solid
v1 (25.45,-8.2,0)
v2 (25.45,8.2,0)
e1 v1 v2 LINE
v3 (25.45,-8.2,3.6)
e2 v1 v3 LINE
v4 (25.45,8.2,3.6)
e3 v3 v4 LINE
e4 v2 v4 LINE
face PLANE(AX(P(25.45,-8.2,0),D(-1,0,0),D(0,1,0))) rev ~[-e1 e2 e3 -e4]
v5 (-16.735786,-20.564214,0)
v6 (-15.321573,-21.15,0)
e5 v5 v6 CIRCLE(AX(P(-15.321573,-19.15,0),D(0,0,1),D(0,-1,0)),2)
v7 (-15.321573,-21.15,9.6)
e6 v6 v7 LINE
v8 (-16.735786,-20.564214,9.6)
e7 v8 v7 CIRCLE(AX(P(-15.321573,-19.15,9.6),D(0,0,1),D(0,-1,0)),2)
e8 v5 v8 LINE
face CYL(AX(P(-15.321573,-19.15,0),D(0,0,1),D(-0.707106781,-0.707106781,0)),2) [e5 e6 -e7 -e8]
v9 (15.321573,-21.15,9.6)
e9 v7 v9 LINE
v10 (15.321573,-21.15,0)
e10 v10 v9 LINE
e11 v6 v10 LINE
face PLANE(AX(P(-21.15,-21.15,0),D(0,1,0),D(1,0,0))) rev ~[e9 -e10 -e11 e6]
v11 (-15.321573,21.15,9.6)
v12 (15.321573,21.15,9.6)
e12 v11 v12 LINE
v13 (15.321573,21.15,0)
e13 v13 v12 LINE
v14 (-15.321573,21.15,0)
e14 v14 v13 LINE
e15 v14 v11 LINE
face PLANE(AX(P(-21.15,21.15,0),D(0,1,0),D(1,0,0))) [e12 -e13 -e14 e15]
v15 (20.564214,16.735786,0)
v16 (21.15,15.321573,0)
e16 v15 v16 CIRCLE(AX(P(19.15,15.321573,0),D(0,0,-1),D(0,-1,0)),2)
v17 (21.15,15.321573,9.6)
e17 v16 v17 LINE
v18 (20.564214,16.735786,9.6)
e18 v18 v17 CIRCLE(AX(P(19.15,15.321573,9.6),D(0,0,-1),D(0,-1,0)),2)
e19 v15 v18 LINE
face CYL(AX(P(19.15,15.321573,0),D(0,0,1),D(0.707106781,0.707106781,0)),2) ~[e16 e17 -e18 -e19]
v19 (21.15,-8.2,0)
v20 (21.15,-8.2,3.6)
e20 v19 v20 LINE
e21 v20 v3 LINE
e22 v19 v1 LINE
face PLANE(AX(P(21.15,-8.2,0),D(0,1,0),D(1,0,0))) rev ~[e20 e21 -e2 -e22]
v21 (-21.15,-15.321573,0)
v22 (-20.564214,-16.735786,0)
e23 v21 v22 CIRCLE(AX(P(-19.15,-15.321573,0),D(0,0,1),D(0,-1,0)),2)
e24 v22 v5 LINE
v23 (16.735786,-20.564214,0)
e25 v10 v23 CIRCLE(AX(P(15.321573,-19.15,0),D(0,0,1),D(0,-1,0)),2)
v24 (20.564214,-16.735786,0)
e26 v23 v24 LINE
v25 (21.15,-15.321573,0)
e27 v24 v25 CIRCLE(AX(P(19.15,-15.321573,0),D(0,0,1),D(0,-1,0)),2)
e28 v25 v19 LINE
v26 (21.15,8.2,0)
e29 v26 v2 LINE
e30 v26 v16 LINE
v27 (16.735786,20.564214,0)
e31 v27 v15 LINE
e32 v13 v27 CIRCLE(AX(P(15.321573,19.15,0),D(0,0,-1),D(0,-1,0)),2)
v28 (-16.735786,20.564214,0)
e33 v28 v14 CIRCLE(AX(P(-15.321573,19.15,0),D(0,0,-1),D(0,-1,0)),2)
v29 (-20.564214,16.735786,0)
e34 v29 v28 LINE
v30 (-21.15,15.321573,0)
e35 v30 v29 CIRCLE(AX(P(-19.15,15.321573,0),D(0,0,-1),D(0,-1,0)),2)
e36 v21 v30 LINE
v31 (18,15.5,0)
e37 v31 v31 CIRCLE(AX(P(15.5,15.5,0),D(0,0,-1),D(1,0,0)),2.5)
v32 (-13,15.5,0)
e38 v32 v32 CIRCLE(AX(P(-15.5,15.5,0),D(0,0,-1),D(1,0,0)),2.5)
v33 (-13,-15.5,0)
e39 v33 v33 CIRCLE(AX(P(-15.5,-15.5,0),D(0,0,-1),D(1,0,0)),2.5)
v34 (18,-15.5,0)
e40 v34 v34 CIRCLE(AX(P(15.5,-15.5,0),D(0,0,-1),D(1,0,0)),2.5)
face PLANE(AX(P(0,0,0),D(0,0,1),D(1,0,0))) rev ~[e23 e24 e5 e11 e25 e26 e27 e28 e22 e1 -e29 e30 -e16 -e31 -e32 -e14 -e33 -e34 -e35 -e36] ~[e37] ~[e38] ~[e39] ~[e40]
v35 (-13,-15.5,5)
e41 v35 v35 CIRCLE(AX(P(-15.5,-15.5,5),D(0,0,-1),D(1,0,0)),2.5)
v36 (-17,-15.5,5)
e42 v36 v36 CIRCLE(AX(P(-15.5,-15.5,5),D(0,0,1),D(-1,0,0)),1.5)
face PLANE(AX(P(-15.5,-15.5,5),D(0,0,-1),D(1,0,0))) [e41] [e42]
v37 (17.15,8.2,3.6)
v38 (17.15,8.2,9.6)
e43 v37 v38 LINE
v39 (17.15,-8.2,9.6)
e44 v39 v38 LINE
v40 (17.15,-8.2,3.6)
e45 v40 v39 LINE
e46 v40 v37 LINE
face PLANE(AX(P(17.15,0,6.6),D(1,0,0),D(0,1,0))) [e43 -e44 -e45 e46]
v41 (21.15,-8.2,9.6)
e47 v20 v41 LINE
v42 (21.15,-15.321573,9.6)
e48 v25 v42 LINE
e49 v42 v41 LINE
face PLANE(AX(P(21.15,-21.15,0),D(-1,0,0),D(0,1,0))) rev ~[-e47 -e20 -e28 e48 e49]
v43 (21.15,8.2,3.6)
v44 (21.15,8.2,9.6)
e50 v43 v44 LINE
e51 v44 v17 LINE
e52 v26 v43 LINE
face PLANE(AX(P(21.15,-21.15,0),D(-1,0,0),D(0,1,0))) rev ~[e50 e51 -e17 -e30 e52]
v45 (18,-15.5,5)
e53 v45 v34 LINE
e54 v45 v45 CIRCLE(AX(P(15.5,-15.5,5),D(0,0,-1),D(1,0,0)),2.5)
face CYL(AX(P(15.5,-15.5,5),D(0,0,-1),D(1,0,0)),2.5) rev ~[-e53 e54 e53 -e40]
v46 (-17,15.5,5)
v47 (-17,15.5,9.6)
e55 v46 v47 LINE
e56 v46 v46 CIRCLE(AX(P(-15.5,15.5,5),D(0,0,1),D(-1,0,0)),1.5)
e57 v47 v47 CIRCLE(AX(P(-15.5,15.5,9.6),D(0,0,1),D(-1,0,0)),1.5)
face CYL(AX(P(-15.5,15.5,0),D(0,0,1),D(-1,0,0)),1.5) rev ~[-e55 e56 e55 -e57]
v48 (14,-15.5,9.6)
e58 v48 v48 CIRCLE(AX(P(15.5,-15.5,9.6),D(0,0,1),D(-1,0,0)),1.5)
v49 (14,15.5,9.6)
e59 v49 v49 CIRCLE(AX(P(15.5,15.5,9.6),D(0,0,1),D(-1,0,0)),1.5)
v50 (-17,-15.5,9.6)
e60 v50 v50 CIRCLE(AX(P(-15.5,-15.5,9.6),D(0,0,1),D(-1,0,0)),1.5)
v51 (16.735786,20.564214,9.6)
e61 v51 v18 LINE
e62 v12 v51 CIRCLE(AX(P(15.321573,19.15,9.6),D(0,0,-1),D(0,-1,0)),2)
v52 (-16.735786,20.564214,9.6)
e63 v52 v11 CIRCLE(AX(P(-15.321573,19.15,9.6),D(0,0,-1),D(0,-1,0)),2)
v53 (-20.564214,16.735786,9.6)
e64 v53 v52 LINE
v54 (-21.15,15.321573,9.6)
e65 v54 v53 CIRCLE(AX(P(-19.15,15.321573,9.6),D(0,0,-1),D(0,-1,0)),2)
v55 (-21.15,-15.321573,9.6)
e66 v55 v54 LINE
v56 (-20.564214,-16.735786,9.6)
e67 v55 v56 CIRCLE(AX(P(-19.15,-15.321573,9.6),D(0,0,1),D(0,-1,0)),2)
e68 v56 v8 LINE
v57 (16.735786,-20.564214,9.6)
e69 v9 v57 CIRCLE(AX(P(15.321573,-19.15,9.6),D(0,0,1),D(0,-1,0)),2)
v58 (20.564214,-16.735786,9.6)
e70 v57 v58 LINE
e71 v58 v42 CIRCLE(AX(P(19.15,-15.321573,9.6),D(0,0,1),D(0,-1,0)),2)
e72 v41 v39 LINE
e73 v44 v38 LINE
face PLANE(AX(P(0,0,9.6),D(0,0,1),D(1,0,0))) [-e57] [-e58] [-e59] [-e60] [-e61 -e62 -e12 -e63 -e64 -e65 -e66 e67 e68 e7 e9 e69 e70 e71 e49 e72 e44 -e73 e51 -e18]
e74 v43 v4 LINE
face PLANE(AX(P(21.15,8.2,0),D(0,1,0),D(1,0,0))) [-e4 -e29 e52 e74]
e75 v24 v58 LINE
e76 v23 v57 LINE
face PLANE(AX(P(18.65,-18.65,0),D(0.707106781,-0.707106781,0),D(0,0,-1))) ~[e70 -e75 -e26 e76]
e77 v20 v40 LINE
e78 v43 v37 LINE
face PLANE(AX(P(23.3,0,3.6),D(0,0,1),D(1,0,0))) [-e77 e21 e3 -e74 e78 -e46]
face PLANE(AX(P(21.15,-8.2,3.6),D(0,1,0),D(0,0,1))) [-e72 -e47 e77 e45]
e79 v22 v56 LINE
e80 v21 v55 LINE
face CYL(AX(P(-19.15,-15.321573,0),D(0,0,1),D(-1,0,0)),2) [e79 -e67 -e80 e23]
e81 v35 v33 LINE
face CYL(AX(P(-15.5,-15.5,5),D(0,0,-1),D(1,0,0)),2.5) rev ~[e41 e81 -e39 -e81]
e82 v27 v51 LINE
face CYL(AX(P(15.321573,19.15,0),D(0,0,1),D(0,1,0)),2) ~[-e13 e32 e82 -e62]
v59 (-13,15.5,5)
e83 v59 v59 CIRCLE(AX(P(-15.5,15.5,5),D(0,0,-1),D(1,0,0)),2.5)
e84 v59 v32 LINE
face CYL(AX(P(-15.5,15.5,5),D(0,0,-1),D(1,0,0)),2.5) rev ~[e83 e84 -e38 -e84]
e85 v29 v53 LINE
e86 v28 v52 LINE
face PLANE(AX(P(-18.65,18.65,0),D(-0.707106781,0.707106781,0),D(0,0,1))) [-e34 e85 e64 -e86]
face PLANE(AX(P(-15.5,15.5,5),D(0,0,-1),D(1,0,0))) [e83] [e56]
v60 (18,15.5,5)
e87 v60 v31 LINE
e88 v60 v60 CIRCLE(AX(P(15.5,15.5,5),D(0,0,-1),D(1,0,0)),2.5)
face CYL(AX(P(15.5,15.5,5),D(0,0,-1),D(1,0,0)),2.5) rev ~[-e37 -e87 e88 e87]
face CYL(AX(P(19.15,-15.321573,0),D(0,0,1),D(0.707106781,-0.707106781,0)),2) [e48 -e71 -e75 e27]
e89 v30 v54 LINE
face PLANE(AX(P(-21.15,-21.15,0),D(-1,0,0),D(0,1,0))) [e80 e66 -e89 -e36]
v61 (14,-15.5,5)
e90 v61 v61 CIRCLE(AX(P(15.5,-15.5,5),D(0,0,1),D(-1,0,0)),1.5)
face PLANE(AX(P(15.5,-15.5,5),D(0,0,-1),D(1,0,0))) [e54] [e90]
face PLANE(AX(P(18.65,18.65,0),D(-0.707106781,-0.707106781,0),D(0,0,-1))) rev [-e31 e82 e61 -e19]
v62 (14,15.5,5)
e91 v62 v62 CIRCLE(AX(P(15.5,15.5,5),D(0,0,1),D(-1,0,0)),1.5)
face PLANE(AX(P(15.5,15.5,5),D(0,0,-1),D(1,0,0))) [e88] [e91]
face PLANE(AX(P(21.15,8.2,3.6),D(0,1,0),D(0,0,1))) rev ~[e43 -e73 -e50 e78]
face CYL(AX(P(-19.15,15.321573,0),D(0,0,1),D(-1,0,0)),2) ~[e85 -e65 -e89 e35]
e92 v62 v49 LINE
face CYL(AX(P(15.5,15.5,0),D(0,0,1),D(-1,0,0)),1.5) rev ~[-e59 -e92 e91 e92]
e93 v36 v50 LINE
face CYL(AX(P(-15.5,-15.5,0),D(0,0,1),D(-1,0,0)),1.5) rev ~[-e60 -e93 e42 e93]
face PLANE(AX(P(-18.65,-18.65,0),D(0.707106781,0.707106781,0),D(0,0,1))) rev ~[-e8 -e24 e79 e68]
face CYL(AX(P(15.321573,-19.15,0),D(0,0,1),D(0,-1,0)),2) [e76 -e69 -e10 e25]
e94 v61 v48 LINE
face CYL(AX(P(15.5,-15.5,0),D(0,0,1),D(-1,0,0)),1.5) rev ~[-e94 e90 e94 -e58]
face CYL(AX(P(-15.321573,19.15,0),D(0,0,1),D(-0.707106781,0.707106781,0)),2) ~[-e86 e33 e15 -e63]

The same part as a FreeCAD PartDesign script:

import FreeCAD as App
import Part
import Sketcher
Q = App.Units.Quantity


def edges_at(feature, points):
    """Names of the edges that pass closest to the given points."""
    edges = feature.Shape.Edges
    near = lambda p: min(range(len(edges)), key=lambda i: edges[i].distToShape(Part.Vertex(*p))[0])
    return sorted({f"Edge{near(p) + 1}" for p in points})

doc = App.newDocument("Part")
params = doc.addObject("Spreadsheet::Sheet", "Params")
for row, (alias, value) in enumerate([
    ("sketch1_width", "42.3 mm"),
    ("pad1_length", "9.6 mm"),
    ("sketch2_width", "4.3 mm"),
    ("sketch2_height", "16.4 mm"),
    ("pad2_length", "3.6 mm"),
    ("chamfer_size", "5 mm"),
    ("fillet_radius", "2 mm"),
    ("sketch3_diameter", "3 mm"),
    ("hole_diameter", "3 mm"),
    ("hole_depth", "25 mm"),
    ("hole_cbore_diameter", "5 mm"),
    ("hole_cbore_depth", "5 mm"),
    ("sketch4_height", "6 mm"),
    ("sketch4_width", "16.4 mm"),
    ("pocket1_length", "4 mm"),
], start=1):
    params.set(f"A{row}", alias)
    params.set(f"B{row}", "=" + value)
    params.setAlias(f"B{row}", alias)

body = doc.addObject("PartDesign::Body", "Body")

sketch1 = body.newObject("Sketcher::SketchObject", "Sketch")
sketch1.AttachmentSupport = (doc.getObject("XY_Plane"), [""])
sketch1.MapMode = "FlatFace"
sketch1.addGeometry([
    Part.LineSegment(App.Vector(-21, 21, 0), App.Vector(-21, -21, 0)),
    Part.LineSegment(App.Vector(-21, -21, 0), App.Vector(21, -21, 0)),
    Part.LineSegment(App.Vector(21, -21, 0), App.Vector(21, 21, 0)),
    Part.LineSegment(App.Vector(21, 21, 0), App.Vector(-21, 21, 0)),
], False)
sketch1.addConstraint([
    Sketcher.Constraint("Coincident", 0, 2, 1, 1),
    Sketcher.Constraint("Coincident", 1, 2, 2, 1),
    Sketcher.Constraint("Coincident", 2, 2, 3, 1),
    Sketcher.Constraint("Coincident", 3, 2, 0, 1),
    Sketcher.Constraint("Vertical", 0),
    Sketcher.Constraint("Horizontal", 1),
    Sketcher.Constraint("Vertical", 2),
    Sketcher.Constraint("Horizontal", 3),
    Sketcher.Constraint("Symmetric", 0, 2, 2, 2, -1, 1),
    Sketcher.Constraint("Equal", 3, 0),
    Sketcher.Constraint("DistanceX", 1, 1, 1, 2, Q("42.3 mm")),
])
sketch1.setExpression("Constraints[10]", "Params.sketch1_width")
pad1 = body.newObject("PartDesign::Pad", "Pad")
pad1.Profile = sketch1
pad1.setExpression("Length", "Params.pad1_length")

sketch2 = body.newObject("Sketcher::SketchObject", "Sketch001")
sketch2.AttachmentSupport = (doc.getObject("XY_Plane"), [""])
sketch2.MapMode = "FlatFace"
sketch2.addGeometry([
    Part.LineSegment(App.Vector(21.1, 8.2, 0), App.Vector(21.1, -8.2, 0)),
    Part.LineSegment(App.Vector(21.1, -8.2, 0), App.Vector(25.4, -8.2, 0)),
    Part.LineSegment(App.Vector(25.4, -8.2, 0), App.Vector(25.4, 8.2, 0)),
    Part.LineSegment(App.Vector(25.4, 8.2, 0), App.Vector(21.1, 8.2, 0)),
], False)
sketch2.addConstraint([
    Sketcher.Constraint("Coincident", 0, 2, 1, 1),
    Sketcher.Constraint("Coincident", 1, 2, 2, 1),
    Sketcher.Constraint("Coincident", 2, 2, 3, 1),
    Sketcher.Constraint("Coincident", 3, 2, 0, 1),
    Sketcher.Constraint("Vertical", 0),
    Sketcher.Constraint("Horizontal", 1),
    Sketcher.Constraint("Vertical", 2),
    Sketcher.Constraint("Horizontal", 3),
    Sketcher.Constraint("DistanceX", 1, 1, 1, 2, Q("4.3 mm")),
    Sketcher.Constraint("DistanceY", 0, 2, 0, 1, Q("16.4 mm")),
    Sketcher.Constraint("DistanceY", 0, 2, -1, 1, Q("8.2 mm")),
    Sketcher.Constraint("DistanceX", -1, 1, 0, 2, Q("21.15 mm")),
])
sketch2.setExpression("Constraints[8]", "Params.sketch2_width")
sketch2.setExpression("Constraints[9]", "Params.sketch2_height")
pad2 = body.newObject("PartDesign::Pad", "Pad001")
pad2.Profile = sketch2
pad2.setExpression("Length", "Params.pad2_length")
doc.recompute()

chamfer = body.newObject("PartDesign::Chamfer", "Chamfer")
chamfer.Base = (pad2, edges_at(pad2, [
    (21.15, -21.15, 4.8),
    (-21.15, -21.15, 4.8),
    (-21.15, 21.15, 4.8),
    (21.15, 21.15, 4.8),
]))
chamfer.setExpression("Size", "Params.chamfer_size")
doc.recompute()

fillet = body.newObject("PartDesign::Fillet", "Fillet")
fillet.Base = (chamfer, edges_at(chamfer, [
    (16.15, -21.15, 4.8),
    (21.15, -16.15, 4.8),
    (21.15, 16.15, 4.8),
    (16.15, 21.15, 4.8),
    (-16.15, 21.15, 4.8),
    (-21.15, 16.15, 4.8),
    (-16.15, -21.15, 4.8),
    (-21.15, -16.15, 4.8),
]))
fillet.setExpression("Radius", "Params.fillet_radius")

sketch3 = body.newObject("Sketcher::SketchObject", "Sketch002")
sketch3.AttachmentSupport = (doc.getObject("XY_Plane"), [""])
sketch3.MapMode = "FlatFace"
sketch3.addGeometry([
    Part.Circle(App.Vector(-15.5, -15.5, 0), App.Vector(0, 0, 1), 1.5),
    Part.Circle(App.Vector(15.5, -15.5, 0), App.Vector(0, 0, 1), 1.5),
    Part.Circle(App.Vector(15.5, 15.5, 0), App.Vector(0, 0, 1), 1.5),
    Part.Circle(App.Vector(-15.5, 15.5, 0), App.Vector(0, 0, 1), 1.5),
], False)
sketch3.addConstraint([
    Sketcher.Constraint("Equal", 0, 1),
    Sketcher.Constraint("Equal", 1, 2),
    Sketcher.Constraint("Equal", 2, 3),
    Sketcher.Constraint("Symmetric", 0, 3, 2, 3, -1, 1),
    Sketcher.Constraint("Symmetric", 1, 3, 3, 3, -1, 1),
    Sketcher.Constraint("Symmetric", 0, 3, 1, 3, -2),
    Sketcher.Constraint("Diameter", 0, Q("3 mm")),
    Sketcher.Constraint("DistanceX", 0, 3, 1, 3, Q("31 mm")),
    Sketcher.Constraint("DistanceY", 1, 3, 2, 3, Q("31 mm")),
])
sketch3.setExpression("Constraints[6]", "Params.sketch3_diameter")
doc.recompute()
hole = body.newObject("PartDesign::Hole", "Hole")
hole.Profile = sketch3
hole.ThreadType = "None"
hole.setExpression("Diameter", "Params.hole_diameter")
hole.DepthType = "Dimension"
hole.setExpression("Depth", "Params.hole_depth")
hole.DrillPoint = "Flat"
hole.HoleCutType = "Counterbore"
hole.setExpression("HoleCutDiameter", "Params.hole_cbore_diameter")
hole.setExpression("HoleCutDepth", "Params.hole_cbore_depth")
hole.Reversed = True

sketch4 = body.newObject("Sketcher::SketchObject", "Sketch003")
sketch4.AttachmentSupport = (doc.getObject("YZ_Plane"), [""])
sketch4.MapMode = "FlatFace"
sketch4.AttachmentOffset = App.Placement(App.Vector(0, 0, 21.15), App.Rotation())
sketch4.addGeometry([
    Part.LineSegment(App.Vector(-8, 10, 0), App.Vector(-8, 4, 0)),
    Part.LineSegment(App.Vector(-8, 4, 0), App.Vector(8, 4, 0)),
    Part.LineSegment(App.Vector(8, 4, 0), App.Vector(8, 10, 0)),
    Part.LineSegment(App.Vector(8, 10, 0), App.Vector(-8, 10, 0)),
], False)
sketch4.addConstraint([
    Sketcher.Constraint("Coincident", 0, 2, 1, 1),
    Sketcher.Constraint("Coincident", 1, 2, 2, 1),
    Sketcher.Constraint("Coincident", 2, 2, 3, 1),
    Sketcher.Constraint("Coincident", 3, 2, 0, 1),
    Sketcher.Constraint("Vertical", 0),
    Sketcher.Constraint("Horizontal", 1),
    Sketcher.Constraint("Vertical", 2),
    Sketcher.Constraint("Horizontal", 3),
    Sketcher.Constraint("DistanceY", 0, 2, 0, 1, Q("6 mm")),
    Sketcher.Constraint("DistanceX", 1, 1, 1, 2, Q("16.4 mm")),
    Sketcher.Constraint("DistanceX", 0, 2, -1, 1, Q("8.2 mm")),
    Sketcher.Constraint("DistanceY", -1, 1, 0, 2, Q("3.6 mm")),
])
sketch4.setExpression("Constraints[8]", "Params.sketch4_height")
sketch4.setExpression("Constraints[9]", "Params.sketch4_width")
pocket1 = body.newObject("PartDesign::Pocket", "Pocket")
pocket1.Profile = sketch4
pocket1.setExpression("Length", "Params.pocket1_length")

doc.recompute()
